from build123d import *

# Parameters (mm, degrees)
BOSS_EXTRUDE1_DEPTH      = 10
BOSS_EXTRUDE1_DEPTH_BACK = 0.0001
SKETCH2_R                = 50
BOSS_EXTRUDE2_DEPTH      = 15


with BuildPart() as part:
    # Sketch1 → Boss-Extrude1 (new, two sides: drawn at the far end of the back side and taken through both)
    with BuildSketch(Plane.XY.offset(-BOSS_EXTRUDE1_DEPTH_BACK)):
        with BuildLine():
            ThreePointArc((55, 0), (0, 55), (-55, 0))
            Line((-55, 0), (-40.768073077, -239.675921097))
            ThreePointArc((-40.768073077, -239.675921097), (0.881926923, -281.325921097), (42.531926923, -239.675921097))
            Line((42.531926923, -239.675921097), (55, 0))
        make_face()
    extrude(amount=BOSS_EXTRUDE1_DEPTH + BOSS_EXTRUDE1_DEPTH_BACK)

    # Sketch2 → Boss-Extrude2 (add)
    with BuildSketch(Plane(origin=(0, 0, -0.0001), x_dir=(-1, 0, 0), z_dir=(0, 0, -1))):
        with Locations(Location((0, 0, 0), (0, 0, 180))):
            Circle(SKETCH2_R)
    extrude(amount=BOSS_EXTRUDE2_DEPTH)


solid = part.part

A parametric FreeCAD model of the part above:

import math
import FreeCAD as App
import Part
import Sketcher

V = App.Vector
Q = App.Units.Quantity

doc = App.newDocument("Part")
body = doc.addObject("PartDesign::Body", "Body")

# Sketch on XY plane
sketch1 = body.newObject("Sketcher::SketchObject", "Sketch")
sketch1.AttachmentSupport = (doc.getObject("XY_Plane"), [""])
sketch1.MapMode = "FlatFace"
sketch1.addGeometry([
    Part.ArcOfCircle(Part.Circle(V(0, 0, 0), V(0, 0, 1), 55), math.radians(0), math.radians(180)),
    Part.LineSegment(V(-55, 0, 0), V(-40.768073, -239.675921, 0)),
    Part.ArcOfCircle(Part.Circle(V(0.881927, -239.675921, 0), V(0, 0, 1), 41.65), math.radians(180), math.radians(360)),
    Part.LineSegment(V(42.531927, -239.675921, 0), V(55, 0, 0)),
], False)
sketch1.addConstraint([
    Sketcher.Constraint("Coincident", 0, 2, 1, 1),
    Sketcher.Constraint("Coincident", 1, 2, 2, 1),
    Sketcher.Constraint("Coincident", 2, 2, 3, 1),
    Sketcher.Constraint("Coincident", 3, 2, 0, 1),
    Sketcher.Constraint("Coincident", 0, 3, -1, 1),
    Sketcher.Constraint("PointOnObject", 0, 2, -1),
    Sketcher.Constraint("PointOnObject", 3, 2, -1),
    Sketcher.Constraint("Horizontal", 2, 3, 1, 2),
    Sketcher.Constraint("Horizontal", 1, 2, 2, 2),
    Sketcher.Constraint("Radius", 0, Q("55 mm")),
    Sketcher.Constraint("Radius", 2, Q("41.65 mm")),
    Sketcher.Constraint("Distance", 3, Q("240 mm")),
    Sketcher.Constraint("DistanceY", 2, 3, -1, 1, Q("239.675921 mm")),
])
pad1 = body.newObject("PartDesign::Pad", "Pad")
pad1.Profile = sketch1
pad1.Type = "TwoLengths"
pad1.Length = 10
pad1.Length2 = 0.0001

# Sketch on XY plane
sketch2 = body.newObject("Sketcher::SketchObject", "Sketch001")
sketch2.AttachmentSupport = (doc.getObject("XY_Plane"), [""])
sketch2.MapMode = "FlatFace"
sketch2.AttachmentOffset = App.Placement(V(0, 0, -0.0001), App.Rotation())
sketch2.addGeometry(Part.Circle(V(0, 0, 0), V(0, 0, 1), 50), False)
sketch2.addConstraint([
    Sketcher.Constraint("Coincident", 0, 3, -1, 1),
    Sketcher.Constraint("Diameter", 0, Q("100 mm")),
])
pad2 = body.newObject("PartDesign::Pad", "Pad001")
pad2.Profile = sketch2
pad2.Length = 15
pad2.Reversed = True

doc.recompute()
